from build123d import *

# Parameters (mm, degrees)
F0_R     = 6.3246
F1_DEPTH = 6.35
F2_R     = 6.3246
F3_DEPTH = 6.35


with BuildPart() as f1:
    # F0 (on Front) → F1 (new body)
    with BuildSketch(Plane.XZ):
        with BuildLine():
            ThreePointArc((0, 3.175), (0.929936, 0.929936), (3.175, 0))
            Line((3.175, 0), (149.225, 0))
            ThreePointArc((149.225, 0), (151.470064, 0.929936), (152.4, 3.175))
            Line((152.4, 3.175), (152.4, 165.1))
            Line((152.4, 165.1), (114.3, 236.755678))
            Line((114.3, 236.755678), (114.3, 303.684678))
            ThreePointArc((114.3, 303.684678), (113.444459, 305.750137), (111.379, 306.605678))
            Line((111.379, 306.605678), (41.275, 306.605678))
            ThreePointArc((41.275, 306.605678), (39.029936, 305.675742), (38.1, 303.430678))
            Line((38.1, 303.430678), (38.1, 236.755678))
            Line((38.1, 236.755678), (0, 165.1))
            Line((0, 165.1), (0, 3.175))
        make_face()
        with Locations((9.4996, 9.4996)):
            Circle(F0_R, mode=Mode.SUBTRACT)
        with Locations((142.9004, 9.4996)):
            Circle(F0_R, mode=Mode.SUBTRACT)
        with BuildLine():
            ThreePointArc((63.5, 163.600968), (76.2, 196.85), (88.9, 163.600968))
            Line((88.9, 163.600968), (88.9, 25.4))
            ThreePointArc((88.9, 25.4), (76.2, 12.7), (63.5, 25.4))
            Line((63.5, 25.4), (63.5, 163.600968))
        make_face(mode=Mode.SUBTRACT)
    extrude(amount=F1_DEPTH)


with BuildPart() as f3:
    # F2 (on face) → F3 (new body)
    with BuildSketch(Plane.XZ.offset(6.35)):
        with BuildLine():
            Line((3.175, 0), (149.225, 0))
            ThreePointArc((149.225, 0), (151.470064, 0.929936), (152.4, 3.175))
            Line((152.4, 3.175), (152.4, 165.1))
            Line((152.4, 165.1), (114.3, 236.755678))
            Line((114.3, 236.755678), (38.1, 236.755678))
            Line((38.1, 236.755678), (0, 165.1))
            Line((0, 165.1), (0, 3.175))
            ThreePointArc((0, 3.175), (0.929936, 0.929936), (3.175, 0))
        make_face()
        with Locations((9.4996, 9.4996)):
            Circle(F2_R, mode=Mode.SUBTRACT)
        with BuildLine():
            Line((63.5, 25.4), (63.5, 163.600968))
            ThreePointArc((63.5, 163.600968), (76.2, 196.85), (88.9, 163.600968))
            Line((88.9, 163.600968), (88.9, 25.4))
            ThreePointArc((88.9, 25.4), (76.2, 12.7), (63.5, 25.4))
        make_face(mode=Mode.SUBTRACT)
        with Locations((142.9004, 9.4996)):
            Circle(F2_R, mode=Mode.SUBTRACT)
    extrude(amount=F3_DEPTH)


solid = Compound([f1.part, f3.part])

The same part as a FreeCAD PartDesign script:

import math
import FreeCAD as App
import Part
import Sketcher
Q = App.Units.Quantity

doc = App.newDocument("Part")
body = doc.addObject("PartDesign::Body", "Body")

# Sketch on XZ plane
sketch1 = body.newObject("Sketcher::SketchObject", "Sketch")
sketch1.AttachmentSupport = (doc.getObject("XZ_Plane"), [""])
sketch1.MapMode = "FlatFace"
sketch1.addGeometry(Part.ArcOfCircle(Part.Circle(App.Vector(3.175, 3.175, 0), App.Vector(0, 0, 1), 3.175), math.radians(-179.999998), math.radians(-90.000002)), False)
sketch1.addGeometry(Part.LineSegment(App.Vector(3.175, 0, 0), App.Vector(149.225, 0, 0)), False)
sketch1.addGeometry(Part.ArcOfCircle(Part.Circle(App.Vector(149.225, 3.175, 0), App.Vector(0, 0, 1), 3.175), math.radians(-89.999998), math.radians(-0.000002)), False)
sketch1.addGeometry(Part.LineSegment(App.Vector(152.4, 3.175, 0), App.Vector(152.4, 165.1, 0)), False)
sketch1.addGeometry(Part.LineSegment(App.Vector(152.4, 165.1, 0), App.Vector(114.3, 236.755678, 0)), False)
sketch1.addGeometry(Part.LineSegment(App.Vector(114.3, 236.755678, 0), App.Vector(114.3, 303.684678, 0)), False)
sketch1.addGeometry(Part.ArcOfCircle(Part.Circle(App.Vector(111.379, 303.684678, 0), App.Vector(0, 0, 1), 2.921), math.radians(-0.000006), math.radians(90.000006)), False)
sketch1.addGeometry(Part.LineSegment(App.Vector(111.379, 306.605678, 0), App.Vector(41.275, 306.605678, 0)), False)
sketch1.addGeometry(Part.ArcOfCircle(Part.Circle(App.Vector(41.275, 303.430678, 0), App.Vector(0, 0, 1), 3.175), math.radians(90.000002), math.radians(179.999998)), False)
sketch1.addGeometry(Part.LineSegment(App.Vector(38.1, 303.430678, 0), App.Vector(38.1, 236.755678, 0)), False)
sketch1.addGeometry(Part.LineSegment(App.Vector(38.1, 236.755678, 0), App.Vector(0, 165.1, 0)), False)
sketch1.addGeometry(Part.LineSegment(App.Vector(0, 165.1, 0), App.Vector(0, 3.175, 0)), False)
sketch1.addGeometry(Part.Circle(App.Vector(9.4996, 9.4996, 0), App.Vector(0, 0, 1), 6.3246), False)
sketch1.addGeometry(Part.Circle(App.Vector(142.9004, 9.4996, 0), App.Vector(0, 0, 1), 6.3246), False)
sketch1.addGeometry(Part.LineSegment(App.Vector(63.5, 25.4, 0), App.Vector(63.5, 163.600968, 0)), False)
sketch1.addGeometry(Part.ArcOfCircle(Part.Circle(App.Vector(76.2, 177.8, 0), App.Vector(0, 0, 1), 19.05), math.radians(-48.189685), math.radians(228.189685)), False)
sketch1.addGeometry(Part.LineSegment(App.Vector(88.9, 163.600968, 0), App.Vector(88.9, 25.4, 0)), False)
sketch1.addGeometry(Part.ArcOfCircle(Part.Circle(App.Vector(76.2, 25.4, 0), App.Vector(0, 0, 1), 12.7), math.radians(180), math.radians(360)), False)
sketch1.addConstraint(Sketcher.Constraint("Tangent", 0, 2, 1, 1))
sketch1.addConstraint(Sketcher.Constraint("Tangent", 1, 2, 2, 1))
sketch1.addConstraint(Sketcher.Constraint("Tangent", 2, 2, 3, 1))
sketch1.addConstraint(Sketcher.Constraint("Coincident", 3, 2, 4, 1))
sketch1.addConstraint(Sketcher.Constraint("Coincident", 4, 2, 5, 1))
sketch1.addConstraint(Sketcher.Constraint("Tangent", 5, 2, 6, 1))
sketch1.addConstraint(Sketcher.Constraint("Tangent", 6, 2, 7, 1))
sketch1.addConstraint(Sketcher.Constraint("Tangent", 7, 2, 8, 1))
sketch1.addConstraint(Sketcher.Constraint("Tangent", 8, 2, 9, 1))
sketch1.addConstraint(Sketcher.Constraint("Coincident", 9, 2, 10, 1))
sketch1.addConstraint(Sketcher.Constraint("Coincident", 10, 2, 11, 1))
sketch1.addConstraint(Sketcher.Constraint("Tangent", 11, 2, 0, 1))
sketch1.addConstraint(Sketcher.Constraint("Coincident", 14, 2, 15, 2))
sketch1.addConstraint(Sketcher.Constraint("Coincident", 15, 1, 16, 1))
sketch1.addConstraint(Sketcher.Constraint("Tangent", 16, 2, 17, 2))
sketch1.addConstraint(Sketcher.Constraint("Tangent", 17, 1, 14, 1))
sketch1.addConstraint(Sketcher.Constraint("Horizontal", 1))
sketch1.addConstraint(Sketcher.Constraint("Vertical", 3))
sketch1.addConstraint(Sketcher.Constraint("Vertical", 5))
sketch1.addConstraint(Sketcher.Constraint("Horizontal", 7))
sketch1.addConstraint(Sketcher.Constraint("Vertical", 9))
sketch1.addConstraint(Sketcher.Constraint("Vertical", 11))
sketch1.addConstraint(Sketcher.Constraint("Vertical", 14))
sketch1.addConstraint(Sketcher.Constraint("Vertical", 16))
sketch1.addConstraint(Sketcher.Constraint("Equal", 0, 2))
sketch1.addConstraint(Sketcher.Constraint("Equal", 2, 8))
sketch1.addConstraint(Sketcher.Constraint("Equal", 12, 13))
sketch1.addConstraint(Sketcher.Constraint("PointOnObject", 0, 2, -1))
sketch1.addConstraint(Sketcher.Constraint("PointOnObject", 10, 2, -2))
sketch1.addConstraint(Sketcher.Constraint("Horizontal", 12, 3, 13, 3))
sketch1.addConstraint(Sketcher.Constraint("Horizontal", 4, 2, 9, 2))
sketch1.addConstraint(Sketcher.Constraint("Horizontal", 3, 2, 10, 2))
sketch1.addConstraint(Sketcher.Constraint("Horizontal", 14, 2, 15, 1))
sketch1.addConstraint(Sketcher.Constraint("Equal", 4, 10))
sketch1.addConstraint(Sketcher.Constraint("Radius", 17, Q("0.5 in")))
sketch1.addConstraint(Sketcher.Constraint("Radius", 15, Q("0.75 in")))
sketch1.addConstraint(Sketcher.Constraint("Diameter", 12, Q("0.498 in")))
sketch1.addConstraint(Sketcher.Constraint("DistanceX", -1, 1, 15, 3, Q("3 in")))
sketch1.addConstraint(Sketcher.Constraint("DistanceY", -1, 1, 15, 3, Q("7 in")))
sketch1.addConstraint(Sketcher.Constraint("DistanceY", -1, 1, 17, 3, Q("1 in")))
sketch1.addConstraint(Sketcher.Constraint("DistanceX", -1, 1, 2, 2, Q("6 in")))
sketch1.addConstraint(Sketcher.Constraint("Angle", 4, Q("118 deg")))
sketch1.addConstraint(Sketcher.Constraint("Radius", 0, Q("0.125 in")))
sketch1.addConstraint(Sketcher.Constraint("Radius", 6, Q("0.115 in")))
sketch1.addConstraint(Sketcher.Constraint("DistanceX", 8, 2, 5, 2, Q("3 in")))
sketch1.addConstraint(Sketcher.Constraint("DistanceY", -1, 1, 3, 2, Q("6.5 in")))
sketch1.addConstraint(Sketcher.Constraint("DistanceY", 5, 1, 5, 2, Q("2.635 in")))
sketch1.addConstraint(Sketcher.Constraint("DistanceX", -1, 1, 12, 3, Q("0.374 in")))
sketch1.addConstraint(Sketcher.Constraint("DistanceY", -1, 1, 12, 3, Q("0.374 in")))
sketch1.addConstraint(Sketcher.Constraint("DistanceX", -1, 1, 13, 3, Q("5.626 in")))
pad1 = body.newObject("PartDesign::Pad", "Pad")
pad1.Profile = sketch1
pad1.Length = Q("0.25 in")
body2 = doc.addObject("PartDesign::Body", "Body001")

# Sketch on XZ plane
sketch2 = body2.newObject("Sketcher::SketchObject", "Sketch001")
sketch2.AttachmentSupport = (doc.getObject("XZ_Plane001"), [""])
sketch2.MapMode = "FlatFace"
sketch2.AttachmentOffset = App.Placement(App.Vector(0, 0, 0.25 * 25.4), App.Rotation())
sketch2.addGeometry(Part.LineSegment(App.Vector(3.175, 0, 0), App.Vector(149.225, 0, 0)), False)
sketch2.addGeometry(Part.ArcOfCircle(Part.Circle(App.Vector(149.225, 3.175, 0), App.Vector(0, 0, 1), 3.175), math.radians(-89.999998), math.radians(-0.000002)), False)
sketch2.addGeometry(Part.LineSegment(App.Vector(152.4, 3.175, 0), App.Vector(152.4, 165.1, 0)), False)
sketch2.addGeometry(Part.LineSegment(App.Vector(152.4, 165.1, 0), App.Vector(114.3, 236.755678, 0)), False)
sketch2.addGeometry(Part.LineSegment(App.Vector(114.3, 236.755678, 0), App.Vector(38.1, 236.755678, 0)), False)
sketch2.addGeometry(Part.LineSegment(App.Vector(38.1, 236.755678, 0), App.Vector(0, 165.1, 0)), False)
sketch2.addGeometry(Part.LineSegment(App.Vector(0, 165.1, 0), App.Vector(0, 3.175, 0)), False)
sketch2.addGeometry(Part.ArcOfCircle(Part.Circle(App.Vector(3.175, 3.175, 0), App.Vector(0, 0, 1), 3.175), math.radians(-179.999998), math.radians(-90.000002)), False)
sketch2.addGeometry(Part.Circle(App.Vector(9.4996, 9.4996, 0), App.Vector(0, 0, 1), 6.3246), False)
sketch2.addGeometry(Part.Circle(App.Vector(142.9004, 9.4996, 0), App.Vector(0, 0, 1), 6.3246), False)
sketch2.addGeometry(Part.ArcOfCircle(Part.Circle(App.Vector(76.2, 25.4, 0), App.Vector(0, 0, 1), 12.7), math.radians(180), math.radians(360)), False)
sketch2.addGeometry(Part.LineSegment(App.Vector(63.5, 25.4, 0), App.Vector(63.5, 163.600968, 0)), False)
sketch2.addGeometry(Part.ArcOfCircle(Part.Circle(App.Vector(76.2, 177.8, 0), App.Vector(0, 0, 1), 19.05), math.radians(-48.189685), math.radians(228.189685)), False)
sketch2.addGeometry(Part.LineSegment(App.Vector(88.9, 163.600968, 0), App.Vector(88.9, 25.4, 0)), False)
sketch2.addConstraint(Sketcher.Constraint("Tangent", 0, 2, 1, 1))
sketch2.addConstraint(Sketcher.Constraint("Tangent", 1, 2, 2, 1))
sketch2.addConstraint(Sketcher.Constraint("Coincident", 2, 2, 3, 1))
sketch2.addConstraint(Sketcher.Constraint("Coincident", 3, 2, 4, 1))
sketch2.addConstraint(Sketcher.Constraint("Coincident", 4, 2, 5, 1))
sketch2.addConstraint(Sketcher.Constraint("Coincident", 5, 2, 6, 1))
sketch2.addConstraint(Sketcher.Constraint("Tangent", 6, 2, 7, 1))
sketch2.addConstraint(Sketcher.Constraint("Tangent", 7, 2, 0, 1))
sketch2.addConstraint(Sketcher.Constraint("Tangent", 10, 1, 11, 1))
sketch2.addConstraint(Sketcher.Constraint("Coincident", 11, 2, 12, 2))
sketch2.addConstraint(Sketcher.Constraint("Coincident", 12, 1, 13, 1))
sketch2.addConstraint(Sketcher.Constraint("Tangent", 13, 2, 10, 2))
sketch2.addConstraint(Sketcher.Constraint("Horizontal", 0))
sketch2.addConstraint(Sketcher.Constraint("Vertical", 2))
sketch2.addConstraint(Sketcher.Constraint("Horizontal", 4))
sketch2.addConstraint(Sketcher.Constraint("Vertical", 6))
sketch2.addConstraint(Sketcher.Constraint("Vertical", 11))
sketch2.addConstraint(Sketcher.Constraint("Vertical", 13))
sketch2.addConstraint(Sketcher.Constraint("Equal", 1, 7))
sketch2.addConstraint(Sketcher.Constraint("Equal", 8, 9))
sketch2.addConstraint(Sketcher.Constraint("PointOnObject", 0, 2, -1))
sketch2.addConstraint(Sketcher.Constraint("PointOnObject", 5, 2, -2))
sketch2.addConstraint(Sketcher.Constraint("Horizontal", 8, 3, 9, 3))
sketch2.addConstraint(Sketcher.Constraint("Horizontal", 2, 2, 5, 2))
sketch2.addConstraint(Sketcher.Constraint("Horizontal", 11, 2, 12, 1))
sketch2.addConstraint(Sketcher.Constraint("Equal", 3, 5))
sketch2.addConstraint(Sketcher.Constraint("Radius", 10, Q("0.5 in")))
sketch2.addConstraint(Sketcher.Constraint("DistanceX", 4, 2, 4, 1, Q("3 in")))
sketch2.addConstraint(Sketcher.Constraint("Radius", 12, Q("0.75 in")))
sketch2.addConstraint(Sketcher.Constraint("Diameter", 8, Q("0.498 in")))
sketch2.addConstraint(Sketcher.Constraint("DistanceX", -1, 1, 10, 3, Q("3 in")))
sketch2.addConstraint(Sketcher.Constraint("DistanceY", -1, 1, 10, 3, Q("1 in")))
sketch2.addConstraint(Sketcher.Constraint("DistanceY", -1, 1, 12, 3, Q("7 in")))
sketch2.addConstraint(Sketcher.Constraint("DistanceX", -1, 1, 1, 2, Q("6 in")))
sketch2.addConstraint(Sketcher.Constraint("Angle", 3, Q("118 deg")))
sketch2.addConstraint(Sketcher.Constraint("Radius", 1, Q("0.125 in")))
sketch2.addConstraint(Sketcher.Constraint("DistanceY", -1, 1, 2, 2, Q("6.5 in")))
sketch2.addConstraint(Sketcher.Constraint("DistanceX", -1, 1, 8, 3, Q("0.374 in")))
sketch2.addConstraint(Sketcher.Constraint("DistanceY", -1, 1, 8, 3, Q("0.374 in")))
sketch2.addConstraint(Sketcher.Constraint("DistanceX", -1, 1, 9, 3, Q("5.626 in")))
pad2 = body2.newObject("PartDesign::Pad", "Pad001")
pad2.Profile = sketch2
pad2.Length = Q("0.25 in")

doc.recompute()
